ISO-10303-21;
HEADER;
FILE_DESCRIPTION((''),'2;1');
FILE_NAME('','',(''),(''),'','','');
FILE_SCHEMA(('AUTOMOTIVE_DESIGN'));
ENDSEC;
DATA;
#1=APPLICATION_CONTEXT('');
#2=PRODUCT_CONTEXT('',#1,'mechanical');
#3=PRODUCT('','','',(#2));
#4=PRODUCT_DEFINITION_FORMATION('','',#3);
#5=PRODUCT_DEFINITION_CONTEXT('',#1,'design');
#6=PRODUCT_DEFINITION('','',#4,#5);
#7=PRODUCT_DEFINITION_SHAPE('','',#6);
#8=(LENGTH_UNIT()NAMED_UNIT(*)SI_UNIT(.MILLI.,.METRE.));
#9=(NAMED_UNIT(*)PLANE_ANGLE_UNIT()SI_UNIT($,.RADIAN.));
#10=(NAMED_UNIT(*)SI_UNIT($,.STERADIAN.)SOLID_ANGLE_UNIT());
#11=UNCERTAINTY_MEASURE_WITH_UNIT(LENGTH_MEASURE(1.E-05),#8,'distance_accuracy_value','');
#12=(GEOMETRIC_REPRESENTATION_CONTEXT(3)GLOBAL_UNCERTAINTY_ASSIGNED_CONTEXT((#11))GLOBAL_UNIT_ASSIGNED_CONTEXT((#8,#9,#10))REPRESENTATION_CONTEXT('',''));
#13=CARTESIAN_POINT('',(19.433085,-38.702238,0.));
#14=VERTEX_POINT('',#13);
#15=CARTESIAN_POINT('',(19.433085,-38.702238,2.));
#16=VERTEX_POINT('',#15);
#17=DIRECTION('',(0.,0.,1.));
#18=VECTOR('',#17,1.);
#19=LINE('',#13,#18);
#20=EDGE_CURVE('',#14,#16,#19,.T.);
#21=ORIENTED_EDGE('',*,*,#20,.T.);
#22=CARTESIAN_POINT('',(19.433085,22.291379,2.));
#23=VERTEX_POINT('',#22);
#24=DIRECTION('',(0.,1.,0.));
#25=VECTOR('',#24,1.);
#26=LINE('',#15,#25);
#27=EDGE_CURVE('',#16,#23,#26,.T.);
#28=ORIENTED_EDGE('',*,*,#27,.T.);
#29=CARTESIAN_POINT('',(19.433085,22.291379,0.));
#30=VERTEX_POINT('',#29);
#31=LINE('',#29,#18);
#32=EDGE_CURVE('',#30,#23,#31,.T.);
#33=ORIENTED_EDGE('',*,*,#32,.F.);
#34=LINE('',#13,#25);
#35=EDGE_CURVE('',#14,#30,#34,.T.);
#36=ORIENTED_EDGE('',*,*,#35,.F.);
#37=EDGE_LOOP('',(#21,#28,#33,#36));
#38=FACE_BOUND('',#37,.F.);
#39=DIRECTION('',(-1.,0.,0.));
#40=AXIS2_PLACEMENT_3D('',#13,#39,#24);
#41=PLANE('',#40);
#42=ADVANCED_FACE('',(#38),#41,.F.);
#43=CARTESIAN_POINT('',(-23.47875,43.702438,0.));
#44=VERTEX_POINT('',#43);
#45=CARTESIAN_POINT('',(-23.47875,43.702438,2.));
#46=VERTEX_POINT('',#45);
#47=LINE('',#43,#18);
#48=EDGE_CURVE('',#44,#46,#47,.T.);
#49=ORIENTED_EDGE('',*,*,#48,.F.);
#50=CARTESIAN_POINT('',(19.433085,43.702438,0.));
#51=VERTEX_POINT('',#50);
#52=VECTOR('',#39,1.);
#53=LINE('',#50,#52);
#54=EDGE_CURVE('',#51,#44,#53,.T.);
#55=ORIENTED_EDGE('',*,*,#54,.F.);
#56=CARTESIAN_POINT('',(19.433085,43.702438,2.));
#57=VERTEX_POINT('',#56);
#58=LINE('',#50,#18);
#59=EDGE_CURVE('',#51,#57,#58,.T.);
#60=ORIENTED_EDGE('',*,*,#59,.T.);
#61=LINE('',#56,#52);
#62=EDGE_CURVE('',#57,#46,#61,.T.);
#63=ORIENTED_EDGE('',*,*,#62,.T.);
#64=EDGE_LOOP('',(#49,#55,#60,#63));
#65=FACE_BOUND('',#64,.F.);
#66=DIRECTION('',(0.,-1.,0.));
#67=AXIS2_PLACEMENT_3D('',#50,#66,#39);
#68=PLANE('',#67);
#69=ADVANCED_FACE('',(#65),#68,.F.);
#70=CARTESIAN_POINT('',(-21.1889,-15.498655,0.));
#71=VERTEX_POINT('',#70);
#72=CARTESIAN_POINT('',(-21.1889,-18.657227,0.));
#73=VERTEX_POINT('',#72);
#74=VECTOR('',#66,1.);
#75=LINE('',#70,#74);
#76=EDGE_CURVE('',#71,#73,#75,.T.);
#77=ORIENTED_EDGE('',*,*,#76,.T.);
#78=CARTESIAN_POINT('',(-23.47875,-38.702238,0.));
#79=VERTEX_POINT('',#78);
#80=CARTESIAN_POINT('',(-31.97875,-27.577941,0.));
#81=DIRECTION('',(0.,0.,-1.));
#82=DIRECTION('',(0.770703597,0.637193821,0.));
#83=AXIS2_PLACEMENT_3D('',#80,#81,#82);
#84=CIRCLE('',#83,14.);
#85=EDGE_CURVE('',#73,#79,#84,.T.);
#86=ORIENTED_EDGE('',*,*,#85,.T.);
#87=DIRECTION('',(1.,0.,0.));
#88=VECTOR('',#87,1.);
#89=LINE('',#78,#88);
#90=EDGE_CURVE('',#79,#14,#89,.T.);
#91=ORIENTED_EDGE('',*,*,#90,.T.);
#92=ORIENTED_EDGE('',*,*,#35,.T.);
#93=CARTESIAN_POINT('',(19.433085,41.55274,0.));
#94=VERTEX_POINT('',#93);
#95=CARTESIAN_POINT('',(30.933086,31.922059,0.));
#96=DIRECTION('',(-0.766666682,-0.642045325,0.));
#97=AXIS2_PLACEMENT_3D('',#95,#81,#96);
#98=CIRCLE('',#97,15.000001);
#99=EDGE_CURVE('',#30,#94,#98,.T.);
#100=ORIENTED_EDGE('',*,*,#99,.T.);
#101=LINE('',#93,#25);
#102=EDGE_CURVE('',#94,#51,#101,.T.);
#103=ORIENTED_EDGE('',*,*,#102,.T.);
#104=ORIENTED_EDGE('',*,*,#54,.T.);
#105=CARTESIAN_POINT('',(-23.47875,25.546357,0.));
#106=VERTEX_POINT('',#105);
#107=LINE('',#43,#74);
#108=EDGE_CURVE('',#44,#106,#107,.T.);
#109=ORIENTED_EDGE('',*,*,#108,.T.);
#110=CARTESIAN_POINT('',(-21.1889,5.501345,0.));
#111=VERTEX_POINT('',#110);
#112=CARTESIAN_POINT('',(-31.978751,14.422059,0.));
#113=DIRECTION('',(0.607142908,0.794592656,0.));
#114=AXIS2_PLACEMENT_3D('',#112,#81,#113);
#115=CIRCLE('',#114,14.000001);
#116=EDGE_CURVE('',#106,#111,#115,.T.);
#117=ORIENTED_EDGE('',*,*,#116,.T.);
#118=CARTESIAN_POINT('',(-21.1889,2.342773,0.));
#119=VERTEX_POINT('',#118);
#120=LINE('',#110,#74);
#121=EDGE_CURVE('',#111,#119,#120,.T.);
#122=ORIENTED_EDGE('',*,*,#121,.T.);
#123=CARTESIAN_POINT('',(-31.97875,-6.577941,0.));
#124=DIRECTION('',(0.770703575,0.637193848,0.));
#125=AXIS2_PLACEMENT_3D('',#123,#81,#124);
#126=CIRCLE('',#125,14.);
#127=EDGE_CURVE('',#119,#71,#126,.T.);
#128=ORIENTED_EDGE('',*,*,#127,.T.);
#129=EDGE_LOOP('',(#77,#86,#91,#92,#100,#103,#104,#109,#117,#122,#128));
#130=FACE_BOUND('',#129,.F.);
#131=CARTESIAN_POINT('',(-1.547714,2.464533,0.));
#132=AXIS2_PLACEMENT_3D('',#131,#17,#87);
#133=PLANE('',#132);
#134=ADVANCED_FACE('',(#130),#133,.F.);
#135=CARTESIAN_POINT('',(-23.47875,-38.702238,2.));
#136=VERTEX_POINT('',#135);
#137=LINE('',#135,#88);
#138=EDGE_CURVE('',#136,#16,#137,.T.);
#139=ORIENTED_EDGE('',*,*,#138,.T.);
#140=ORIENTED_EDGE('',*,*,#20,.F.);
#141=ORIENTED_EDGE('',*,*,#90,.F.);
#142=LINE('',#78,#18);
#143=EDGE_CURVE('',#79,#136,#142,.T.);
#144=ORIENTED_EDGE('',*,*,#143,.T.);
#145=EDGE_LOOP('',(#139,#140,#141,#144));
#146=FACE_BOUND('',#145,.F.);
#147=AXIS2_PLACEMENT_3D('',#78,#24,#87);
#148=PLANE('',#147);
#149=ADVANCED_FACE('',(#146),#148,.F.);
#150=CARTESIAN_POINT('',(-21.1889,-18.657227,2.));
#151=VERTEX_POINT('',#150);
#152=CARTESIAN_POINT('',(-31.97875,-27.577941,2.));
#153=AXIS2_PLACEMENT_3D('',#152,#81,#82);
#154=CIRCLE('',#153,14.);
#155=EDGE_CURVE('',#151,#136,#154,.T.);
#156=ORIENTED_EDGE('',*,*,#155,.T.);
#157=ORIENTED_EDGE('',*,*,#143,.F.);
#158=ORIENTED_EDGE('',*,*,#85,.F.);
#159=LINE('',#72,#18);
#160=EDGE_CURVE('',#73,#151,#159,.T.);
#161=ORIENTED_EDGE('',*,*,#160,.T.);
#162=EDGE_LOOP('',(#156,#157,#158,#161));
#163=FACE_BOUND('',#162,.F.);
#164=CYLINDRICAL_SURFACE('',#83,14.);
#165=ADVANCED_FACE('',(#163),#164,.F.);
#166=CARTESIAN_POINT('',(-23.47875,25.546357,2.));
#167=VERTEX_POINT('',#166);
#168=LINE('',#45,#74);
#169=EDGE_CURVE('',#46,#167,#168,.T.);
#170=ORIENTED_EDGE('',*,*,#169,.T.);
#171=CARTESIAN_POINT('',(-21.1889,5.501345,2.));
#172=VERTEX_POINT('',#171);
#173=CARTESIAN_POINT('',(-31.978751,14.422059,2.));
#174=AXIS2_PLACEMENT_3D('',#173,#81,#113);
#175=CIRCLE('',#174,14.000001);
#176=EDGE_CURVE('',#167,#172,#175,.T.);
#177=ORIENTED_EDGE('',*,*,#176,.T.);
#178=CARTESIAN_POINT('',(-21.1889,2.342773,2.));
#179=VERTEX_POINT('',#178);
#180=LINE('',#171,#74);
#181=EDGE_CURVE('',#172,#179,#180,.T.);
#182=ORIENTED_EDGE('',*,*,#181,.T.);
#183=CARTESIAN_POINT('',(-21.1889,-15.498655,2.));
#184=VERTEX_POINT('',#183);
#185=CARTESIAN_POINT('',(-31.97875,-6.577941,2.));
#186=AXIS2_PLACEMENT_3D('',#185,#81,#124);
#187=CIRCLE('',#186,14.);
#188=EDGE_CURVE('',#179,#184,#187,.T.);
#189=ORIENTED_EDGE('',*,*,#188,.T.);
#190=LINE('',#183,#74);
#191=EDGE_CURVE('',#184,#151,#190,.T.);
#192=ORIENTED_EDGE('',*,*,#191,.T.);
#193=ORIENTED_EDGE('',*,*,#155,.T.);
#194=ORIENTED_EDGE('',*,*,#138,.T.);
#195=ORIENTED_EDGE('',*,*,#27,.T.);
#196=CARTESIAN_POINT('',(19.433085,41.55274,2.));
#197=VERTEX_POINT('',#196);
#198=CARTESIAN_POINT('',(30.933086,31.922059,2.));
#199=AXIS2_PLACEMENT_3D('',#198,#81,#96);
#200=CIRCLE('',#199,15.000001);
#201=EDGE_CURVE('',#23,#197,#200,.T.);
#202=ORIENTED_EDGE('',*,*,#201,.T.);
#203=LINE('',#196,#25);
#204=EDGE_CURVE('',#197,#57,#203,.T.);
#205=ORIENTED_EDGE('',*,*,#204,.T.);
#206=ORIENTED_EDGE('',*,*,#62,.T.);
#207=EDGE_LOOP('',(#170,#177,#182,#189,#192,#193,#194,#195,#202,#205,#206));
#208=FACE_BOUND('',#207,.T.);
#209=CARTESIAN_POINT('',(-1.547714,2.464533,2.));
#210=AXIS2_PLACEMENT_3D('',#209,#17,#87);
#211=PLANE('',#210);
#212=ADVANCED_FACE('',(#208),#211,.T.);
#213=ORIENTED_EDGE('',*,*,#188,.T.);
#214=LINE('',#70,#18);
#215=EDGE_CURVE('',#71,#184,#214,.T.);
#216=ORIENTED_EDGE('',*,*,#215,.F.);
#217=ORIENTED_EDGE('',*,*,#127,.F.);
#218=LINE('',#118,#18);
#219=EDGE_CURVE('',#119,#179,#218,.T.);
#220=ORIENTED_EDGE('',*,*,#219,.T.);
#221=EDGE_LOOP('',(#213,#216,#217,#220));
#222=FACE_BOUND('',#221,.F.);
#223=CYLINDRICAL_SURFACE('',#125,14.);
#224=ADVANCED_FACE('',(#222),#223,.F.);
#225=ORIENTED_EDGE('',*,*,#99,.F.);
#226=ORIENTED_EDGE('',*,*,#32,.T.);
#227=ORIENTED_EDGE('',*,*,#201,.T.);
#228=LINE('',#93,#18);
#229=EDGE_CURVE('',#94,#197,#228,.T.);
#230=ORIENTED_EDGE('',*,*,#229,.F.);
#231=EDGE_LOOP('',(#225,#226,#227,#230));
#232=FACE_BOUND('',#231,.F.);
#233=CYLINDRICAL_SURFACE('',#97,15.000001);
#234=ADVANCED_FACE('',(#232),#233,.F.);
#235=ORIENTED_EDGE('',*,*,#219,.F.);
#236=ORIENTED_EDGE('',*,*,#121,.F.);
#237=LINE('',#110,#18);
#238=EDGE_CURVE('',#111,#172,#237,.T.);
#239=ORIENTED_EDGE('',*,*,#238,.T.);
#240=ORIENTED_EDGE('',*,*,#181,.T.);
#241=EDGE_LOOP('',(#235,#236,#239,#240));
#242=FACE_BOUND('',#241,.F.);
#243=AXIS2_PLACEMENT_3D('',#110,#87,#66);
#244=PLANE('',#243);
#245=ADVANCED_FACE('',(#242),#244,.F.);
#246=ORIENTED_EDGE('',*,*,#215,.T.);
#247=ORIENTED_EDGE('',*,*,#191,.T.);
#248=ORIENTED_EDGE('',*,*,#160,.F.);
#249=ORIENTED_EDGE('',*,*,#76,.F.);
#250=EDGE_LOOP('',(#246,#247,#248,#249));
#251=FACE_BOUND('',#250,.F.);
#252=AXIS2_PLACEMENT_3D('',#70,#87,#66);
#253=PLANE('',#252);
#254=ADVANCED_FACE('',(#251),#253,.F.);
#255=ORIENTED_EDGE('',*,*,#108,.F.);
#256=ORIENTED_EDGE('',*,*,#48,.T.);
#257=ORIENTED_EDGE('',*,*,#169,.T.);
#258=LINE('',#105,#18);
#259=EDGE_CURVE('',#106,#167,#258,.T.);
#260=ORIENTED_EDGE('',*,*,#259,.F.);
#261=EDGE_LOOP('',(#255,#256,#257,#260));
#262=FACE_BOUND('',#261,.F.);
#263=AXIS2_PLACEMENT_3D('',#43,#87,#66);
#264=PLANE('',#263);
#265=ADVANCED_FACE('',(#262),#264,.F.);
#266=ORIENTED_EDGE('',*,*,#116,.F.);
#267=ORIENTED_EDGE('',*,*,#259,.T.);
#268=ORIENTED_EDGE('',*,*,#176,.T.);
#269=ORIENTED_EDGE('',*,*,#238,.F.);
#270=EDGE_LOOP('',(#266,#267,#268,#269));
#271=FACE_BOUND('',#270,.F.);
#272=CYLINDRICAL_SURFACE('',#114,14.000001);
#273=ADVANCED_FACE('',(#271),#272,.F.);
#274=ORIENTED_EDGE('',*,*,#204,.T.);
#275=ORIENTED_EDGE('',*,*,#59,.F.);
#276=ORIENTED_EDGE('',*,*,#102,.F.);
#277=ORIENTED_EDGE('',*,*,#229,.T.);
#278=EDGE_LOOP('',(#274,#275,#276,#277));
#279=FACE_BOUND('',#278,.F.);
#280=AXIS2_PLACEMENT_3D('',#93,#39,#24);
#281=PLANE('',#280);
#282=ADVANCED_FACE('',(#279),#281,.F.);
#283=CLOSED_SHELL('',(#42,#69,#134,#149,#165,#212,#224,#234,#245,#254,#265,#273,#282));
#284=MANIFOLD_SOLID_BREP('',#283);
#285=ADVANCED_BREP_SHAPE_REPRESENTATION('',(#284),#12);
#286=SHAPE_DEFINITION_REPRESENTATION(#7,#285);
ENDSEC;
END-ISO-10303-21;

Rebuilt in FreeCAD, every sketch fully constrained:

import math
import FreeCAD as App
import Part
import Sketcher
from FreeCAD import Vector
Q = App.Units.Quantity

doc = App.newDocument("Part")
body = doc.addObject("PartDesign::Body", "Body")

sketch1 = body.newObject("Sketcher::SketchObject", "Sketch")
sketch1.AttachmentSupport = (doc.getObject("XY_Plane"), [""])
sketch1.MapMode = "FlatFace"
sketch1.addGeometry(Part.LineSegment(Vector(19.433085, 43.702438, 0), Vector(-23.47875, 43.702438, 0)), False)
sketch1.addGeometry(Part.LineSegment(Vector(-23.47875, 43.702438, 0), Vector(-23.47875, 25.546357, 0)), False)
sketch1.addGeometry(Part.ArcOfCircle(Part.Circle(Vector(-31.978751, 14.422059, 0), Vector(0, 0, 1), 14.000001), math.radians(-39.582885), math.radians(52.616798)), False)
sketch1.addGeometry(Part.LineSegment(Vector(-21.1889, 5.501345, 0), Vector(-21.1889, 2.342773, 0)), False)
sketch1.addGeometry(Part.ArcOfCircle(Part.Circle(Vector(-31.97875, -6.577941, 0), Vector(0, 0, 1), 14), math.radians(-39.582889), math.radians(39.582889)), False)
sketch1.addGeometry(Part.LineSegment(Vector(-21.1889, -15.498655, 0), Vector(-21.1889, -18.657227, 0)), False)
sketch1.addGeometry(Part.ArcOfCircle(Part.Circle(Vector(-31.97875, -27.577941, 0), Vector(0, 0, 1), 14), math.radians(-52.6168), math.radians(39.582887)), False)
sketch1.addGeometry(Part.LineSegment(Vector(-23.47875, -38.702238, 0), Vector(19.433085, -38.702238, 0)), False)
sketch1.addGeometry(Part.LineSegment(Vector(19.433085, -38.702238, 0), Vector(19.433085, 22.291379, 0)), False)
sketch1.addGeometry(Part.ArcOfCircle(Part.Circle(Vector(30.933086, 31.922059, 0), Vector(0, 0, 1), 15.000001), math.radians(140.055496), math.radians(219.944504)), False)
sketch1.addGeometry(Part.LineSegment(Vector(19.433085, 41.55274, 0), Vector(19.433085, 43.702438, 0)), False)
sketch1.addConstraint(Sketcher.Constraint("Coincident", 0, 2, 1, 1))
sketch1.addConstraint(Sketcher.Constraint("Coincident", 1, 2, 2, 2))
sketch1.addConstraint(Sketcher.Constraint("Coincident", 2, 1, 3, 1))
sketch1.addConstraint(Sketcher.Constraint("Coincident", 3, 2, 4, 2))
sketch1.addConstraint(Sketcher.Constraint("Coincident", 4, 1, 5, 1))
sketch1.addConstraint(Sketcher.Constraint("Coincident", 5, 2, 6, 2))
sketch1.addConstraint(Sketcher.Constraint("Coincident", 6, 1, 7, 1))
sketch1.addConstraint(Sketcher.Constraint("Coincident", 7, 2, 8, 1))
sketch1.addConstraint(Sketcher.Constraint("Coincident", 8, 2, 9, 2))
sketch1.addConstraint(Sketcher.Constraint("Coincident", 9, 1, 10, 1))
sketch1.addConstraint(Sketcher.Constraint("Coincident", 10, 2, 0, 1))
sketch1.addConstraint(Sketcher.Constraint("Horizontal", 0))
sketch1.addConstraint(Sketcher.Constraint("Vertical", 1))
sketch1.addConstraint(Sketcher.Constraint("Vertical", 3))
sketch1.addConstraint(Sketcher.Constraint("Vertical", 5))
sketch1.addConstraint(Sketcher.Constraint("Horizontal", 7))
sketch1.addConstraint(Sketcher.Constraint("Vertical", 8))
sketch1.addConstraint(Sketcher.Constraint("Vertical", 10))
sketch1.addConstraint(Sketcher.Constraint("Equal", 2, 4))
sketch1.addConstraint(Sketcher.Constraint("Equal", 4, 6))
sketch1.addConstraint(Sketcher.Constraint("Vertical", 2, 3, 4, 3))
sketch1.addConstraint(Sketcher.Constraint("Vertical", 4, 3, 6, 3))
sketch1.addConstraint(Sketcher.Constraint("Vertical", 3, 2, 4, 1))
sketch1.addConstraint(Sketcher.Constraint("Vertical", 1, 2, 6, 1))
sketch1.addConstraint(Sketcher.Constraint("Vertical", 8, 2, 9, 1))
sketch1.addConstraint(Sketcher.Constraint("Equal", 3, 5))
sketch1.addConstraint(Sketcher.Constraint("Radius", 2, Q("14.000001 mm")))
sketch1.addConstraint(Sketcher.Constraint("Radius", 9, Q("15.000001 mm")))
sketch1.addConstraint(Sketcher.Constraint("DistanceY", 4, 3, 2, 3, Q("21 mm")))
sketch1.addConstraint(Sketcher.Constraint("DistanceY", 2, 3, 9, 3, Q("17.500001 mm")))
sketch1.addConstraint(Sketcher.Constraint("DistanceX", 2, 3, 0, 2, Q("8.500001 mm")))
sketch1.addConstraint(Sketcher.Constraint("DistanceX", 8, 2, 9, 3, Q("11.500001 mm")))
sketch1.addConstraint(Sketcher.Constraint("DistanceY", 10, 1, 10, 2, Q("2.149698 mm")))
sketch1.addConstraint(Sketcher.Constraint("DistanceY", 3, 2, 3, 1, Q("3.158572 mm")))
sketch1.addConstraint(Sketcher.Constraint("DistanceX", 2, 1, -1, 1, Q("21.1889 mm")))
sketch1.addConstraint(Sketcher.Constraint("DistanceX", 0, 2, 0, 1, Q("42.911835 mm")))
sketch1.addConstraint(Sketcher.Constraint("DistanceY", -1, 1, 2, 3, Q("14.422059 mm")))
pad1 = body.newObject("PartDesign::Pad", "Pad")
pad1.Profile = sketch1
pad1.Length = 2

doc.recompute()
